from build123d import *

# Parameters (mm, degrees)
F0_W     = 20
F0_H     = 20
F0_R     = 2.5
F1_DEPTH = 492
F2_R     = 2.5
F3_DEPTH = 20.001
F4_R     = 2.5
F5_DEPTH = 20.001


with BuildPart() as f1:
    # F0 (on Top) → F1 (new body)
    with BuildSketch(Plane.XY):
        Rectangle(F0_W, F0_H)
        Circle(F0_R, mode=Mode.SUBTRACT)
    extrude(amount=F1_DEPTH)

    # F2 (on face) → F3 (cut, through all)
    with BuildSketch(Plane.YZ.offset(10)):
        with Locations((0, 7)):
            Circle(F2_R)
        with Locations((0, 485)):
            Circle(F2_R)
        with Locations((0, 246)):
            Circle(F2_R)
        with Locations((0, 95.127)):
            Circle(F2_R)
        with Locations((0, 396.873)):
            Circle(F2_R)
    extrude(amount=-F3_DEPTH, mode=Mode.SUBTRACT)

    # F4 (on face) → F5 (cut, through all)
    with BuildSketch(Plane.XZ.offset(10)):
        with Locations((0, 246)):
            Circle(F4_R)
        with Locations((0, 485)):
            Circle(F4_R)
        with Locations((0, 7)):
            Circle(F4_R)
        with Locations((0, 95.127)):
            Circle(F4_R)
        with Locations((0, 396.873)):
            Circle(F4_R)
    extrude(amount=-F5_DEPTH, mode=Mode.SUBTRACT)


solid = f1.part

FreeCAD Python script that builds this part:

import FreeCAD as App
import Part
import Sketcher

V = App.Vector


def add_polygon(sketch, points):
    """Adds a closed chain of lines whose ends are joined by coincident constraints."""
    first, n = sketch.GeometryCount, len(points)
    for a, b in zip(points, points[1:] + points[:1]):
        sketch.addGeometry(Part.LineSegment(App.Vector(*a, 0), App.Vector(*b, 0)), False)
    for i in range(n):
        sketch.addConstraint(Sketcher.Constraint("Coincident", first + i, 2, first + (i + 1) % n, 1))

doc = App.newDocument("Part")
body = doc.addObject("PartDesign::Body", "Body")

# Sketch on XY plane
sketch1 = body.newObject("Sketcher::SketchObject", "Sketch")
sketch1.AttachmentSupport = (doc.getObject("XY_Plane"), [""])
sketch1.MapMode = "FlatFace"
add_polygon(sketch1, [(-10, 10), (-10, -10), (10, -10), (10, 10)])  # lines 0-3
sketch1.addGeometry(Part.Circle(V(0, 0, 0), V(0, 0, 1), 2.5), False)  # 4
sketch1.addConstraint([
    Sketcher.Constraint("Vertical", 0),
    Sketcher.Constraint("Horizontal", 1),
    Sketcher.Constraint("Vertical", 2),
    Sketcher.Constraint("Horizontal", 3),
    Sketcher.Constraint("Coincident", 4, 3, -1, 1),
    Sketcher.Constraint("Symmetric", 0, 2, 2, 2, -1, 1),
    Sketcher.Constraint("Equal", 3, 0),
    Sketcher.Constraint("Diameter", 4, 5.0),
    Sketcher.Constraint("DistanceX", 1, 1, 1, 2, 20.0),
])
pad1 = body.newObject("PartDesign::Pad", "Pad")
pad1.Profile = sketch1
pad1.Length = 492

# Sketch on YZ plane
sketch2 = body.newObject("Sketcher::SketchObject", "Sketch001")
sketch2.AttachmentSupport = (doc.getObject("YZ_Plane"), [""])
sketch2.MapMode = "FlatFace"
sketch2.AttachmentOffset = App.Placement(V(0, 0, 10), App.Rotation())
sketch2.addGeometry([
    Part.Circle(V(0, 7, 0), V(0, 0, 1), 2.5),  # 0
    Part.Circle(V(0, 485, 0), V(0, 0, 1), 2.5),  # 1
    Part.Circle(V(0, 246, 0), V(0, 0, 1), 2.5),  # 2
    Part.Circle(V(0, 95.127, 0), V(0, 0, 1), 2.5),  # 3
    Part.Circle(V(0, 396.873, 0), V(0, 0, 1), 2.5),  # 4
], False)
sketch2.addConstraint([
    Sketcher.Constraint("Equal", 0, 1),
    Sketcher.Constraint("Equal", 1, 2),
    Sketcher.Constraint("Equal", 2, 3),
    Sketcher.Constraint("Equal", 3, 4),
    Sketcher.Constraint("PointOnObject", 0, 3, -2),
    Sketcher.Constraint("PointOnObject", 1, 3, -2),
    Sketcher.Constraint("PointOnObject", 2, 3, -2),
    Sketcher.Constraint("PointOnObject", 3, 3, -2),
    Sketcher.Constraint("PointOnObject", 4, 3, -2),
    Sketcher.Constraint("Diameter", 0, 5.0),
    Sketcher.Constraint("DistanceY", -1, 1, 0, 3, 7.0),
    Sketcher.Constraint("DistanceY", -1, 1, 1, 3, 485.0),
    Sketcher.Constraint("DistanceY", -1, 1, 2, 3, 246.0),
    Sketcher.Constraint("DistanceY", -1, 1, 3, 3, 95.127),
    Sketcher.Constraint("DistanceY", -1, 1, 4, 3, 396.873),
])
pocket1 = body.newObject("PartDesign::Pocket", "Pocket")
pocket1.Profile = sketch2
pocket1.Type = "ThroughAll"

# Sketch on XZ plane
sketch3 = body.newObject("Sketcher::SketchObject", "Sketch002")
sketch3.AttachmentSupport = (doc.getObject("XZ_Plane"), [""])
sketch3.MapMode = "FlatFace"
sketch3.AttachmentOffset = App.Placement(V(0, 0, 10), App.Rotation())
sketch3.addGeometry([
    Part.Circle(V(0, 246, 0), V(0, 0, 1), 2.5),  # 0
    Part.Circle(V(0, 485, 0), V(0, 0, 1), 2.5),  # 1
    Part.Circle(V(0, 7, 0), V(0, 0, 1), 2.5),  # 2
    Part.Circle(V(0, 95.127, 0), V(0, 0, 1), 2.5),  # 3
    Part.Circle(V(0, 396.873, 0), V(0, 0, 1), 2.5),  # 4
], False)
sketch3.addConstraint([
    Sketcher.Constraint("Equal", 0, 1),
    Sketcher.Constraint("Equal", 1, 2),
    Sketcher.Constraint("Equal", 2, 3),
    Sketcher.Constraint("Equal", 3, 4),
    Sketcher.Constraint("PointOnObject", 0, 3, -2),
    Sketcher.Constraint("PointOnObject", 1, 3, -2),
    Sketcher.Constraint("PointOnObject", 2, 3, -2),
    Sketcher.Constraint("PointOnObject", 3, 3, -2),
    Sketcher.Constraint("PointOnObject", 4, 3, -2),
    Sketcher.Constraint("Diameter", 0, 5.0),
    Sketcher.Constraint("DistanceY", -1, 1, 0, 3, 246.0),
    Sketcher.Constraint("DistanceY", -1, 1, 1, 3, 485.0),
    Sketcher.Constraint("DistanceY", -1, 1, 2, 3, 7.0),
    Sketcher.Constraint("DistanceY", -1, 1, 3, 3, 95.127),
    Sketcher.Constraint("DistanceY", -1, 1, 4, 3, 396.873),
])
pocket2 = body.newObject("PartDesign::Pocket", "Pocket001")
pocket2.Profile = sketch3
pocket2.Type = "ThroughAll"

doc.recompute()
